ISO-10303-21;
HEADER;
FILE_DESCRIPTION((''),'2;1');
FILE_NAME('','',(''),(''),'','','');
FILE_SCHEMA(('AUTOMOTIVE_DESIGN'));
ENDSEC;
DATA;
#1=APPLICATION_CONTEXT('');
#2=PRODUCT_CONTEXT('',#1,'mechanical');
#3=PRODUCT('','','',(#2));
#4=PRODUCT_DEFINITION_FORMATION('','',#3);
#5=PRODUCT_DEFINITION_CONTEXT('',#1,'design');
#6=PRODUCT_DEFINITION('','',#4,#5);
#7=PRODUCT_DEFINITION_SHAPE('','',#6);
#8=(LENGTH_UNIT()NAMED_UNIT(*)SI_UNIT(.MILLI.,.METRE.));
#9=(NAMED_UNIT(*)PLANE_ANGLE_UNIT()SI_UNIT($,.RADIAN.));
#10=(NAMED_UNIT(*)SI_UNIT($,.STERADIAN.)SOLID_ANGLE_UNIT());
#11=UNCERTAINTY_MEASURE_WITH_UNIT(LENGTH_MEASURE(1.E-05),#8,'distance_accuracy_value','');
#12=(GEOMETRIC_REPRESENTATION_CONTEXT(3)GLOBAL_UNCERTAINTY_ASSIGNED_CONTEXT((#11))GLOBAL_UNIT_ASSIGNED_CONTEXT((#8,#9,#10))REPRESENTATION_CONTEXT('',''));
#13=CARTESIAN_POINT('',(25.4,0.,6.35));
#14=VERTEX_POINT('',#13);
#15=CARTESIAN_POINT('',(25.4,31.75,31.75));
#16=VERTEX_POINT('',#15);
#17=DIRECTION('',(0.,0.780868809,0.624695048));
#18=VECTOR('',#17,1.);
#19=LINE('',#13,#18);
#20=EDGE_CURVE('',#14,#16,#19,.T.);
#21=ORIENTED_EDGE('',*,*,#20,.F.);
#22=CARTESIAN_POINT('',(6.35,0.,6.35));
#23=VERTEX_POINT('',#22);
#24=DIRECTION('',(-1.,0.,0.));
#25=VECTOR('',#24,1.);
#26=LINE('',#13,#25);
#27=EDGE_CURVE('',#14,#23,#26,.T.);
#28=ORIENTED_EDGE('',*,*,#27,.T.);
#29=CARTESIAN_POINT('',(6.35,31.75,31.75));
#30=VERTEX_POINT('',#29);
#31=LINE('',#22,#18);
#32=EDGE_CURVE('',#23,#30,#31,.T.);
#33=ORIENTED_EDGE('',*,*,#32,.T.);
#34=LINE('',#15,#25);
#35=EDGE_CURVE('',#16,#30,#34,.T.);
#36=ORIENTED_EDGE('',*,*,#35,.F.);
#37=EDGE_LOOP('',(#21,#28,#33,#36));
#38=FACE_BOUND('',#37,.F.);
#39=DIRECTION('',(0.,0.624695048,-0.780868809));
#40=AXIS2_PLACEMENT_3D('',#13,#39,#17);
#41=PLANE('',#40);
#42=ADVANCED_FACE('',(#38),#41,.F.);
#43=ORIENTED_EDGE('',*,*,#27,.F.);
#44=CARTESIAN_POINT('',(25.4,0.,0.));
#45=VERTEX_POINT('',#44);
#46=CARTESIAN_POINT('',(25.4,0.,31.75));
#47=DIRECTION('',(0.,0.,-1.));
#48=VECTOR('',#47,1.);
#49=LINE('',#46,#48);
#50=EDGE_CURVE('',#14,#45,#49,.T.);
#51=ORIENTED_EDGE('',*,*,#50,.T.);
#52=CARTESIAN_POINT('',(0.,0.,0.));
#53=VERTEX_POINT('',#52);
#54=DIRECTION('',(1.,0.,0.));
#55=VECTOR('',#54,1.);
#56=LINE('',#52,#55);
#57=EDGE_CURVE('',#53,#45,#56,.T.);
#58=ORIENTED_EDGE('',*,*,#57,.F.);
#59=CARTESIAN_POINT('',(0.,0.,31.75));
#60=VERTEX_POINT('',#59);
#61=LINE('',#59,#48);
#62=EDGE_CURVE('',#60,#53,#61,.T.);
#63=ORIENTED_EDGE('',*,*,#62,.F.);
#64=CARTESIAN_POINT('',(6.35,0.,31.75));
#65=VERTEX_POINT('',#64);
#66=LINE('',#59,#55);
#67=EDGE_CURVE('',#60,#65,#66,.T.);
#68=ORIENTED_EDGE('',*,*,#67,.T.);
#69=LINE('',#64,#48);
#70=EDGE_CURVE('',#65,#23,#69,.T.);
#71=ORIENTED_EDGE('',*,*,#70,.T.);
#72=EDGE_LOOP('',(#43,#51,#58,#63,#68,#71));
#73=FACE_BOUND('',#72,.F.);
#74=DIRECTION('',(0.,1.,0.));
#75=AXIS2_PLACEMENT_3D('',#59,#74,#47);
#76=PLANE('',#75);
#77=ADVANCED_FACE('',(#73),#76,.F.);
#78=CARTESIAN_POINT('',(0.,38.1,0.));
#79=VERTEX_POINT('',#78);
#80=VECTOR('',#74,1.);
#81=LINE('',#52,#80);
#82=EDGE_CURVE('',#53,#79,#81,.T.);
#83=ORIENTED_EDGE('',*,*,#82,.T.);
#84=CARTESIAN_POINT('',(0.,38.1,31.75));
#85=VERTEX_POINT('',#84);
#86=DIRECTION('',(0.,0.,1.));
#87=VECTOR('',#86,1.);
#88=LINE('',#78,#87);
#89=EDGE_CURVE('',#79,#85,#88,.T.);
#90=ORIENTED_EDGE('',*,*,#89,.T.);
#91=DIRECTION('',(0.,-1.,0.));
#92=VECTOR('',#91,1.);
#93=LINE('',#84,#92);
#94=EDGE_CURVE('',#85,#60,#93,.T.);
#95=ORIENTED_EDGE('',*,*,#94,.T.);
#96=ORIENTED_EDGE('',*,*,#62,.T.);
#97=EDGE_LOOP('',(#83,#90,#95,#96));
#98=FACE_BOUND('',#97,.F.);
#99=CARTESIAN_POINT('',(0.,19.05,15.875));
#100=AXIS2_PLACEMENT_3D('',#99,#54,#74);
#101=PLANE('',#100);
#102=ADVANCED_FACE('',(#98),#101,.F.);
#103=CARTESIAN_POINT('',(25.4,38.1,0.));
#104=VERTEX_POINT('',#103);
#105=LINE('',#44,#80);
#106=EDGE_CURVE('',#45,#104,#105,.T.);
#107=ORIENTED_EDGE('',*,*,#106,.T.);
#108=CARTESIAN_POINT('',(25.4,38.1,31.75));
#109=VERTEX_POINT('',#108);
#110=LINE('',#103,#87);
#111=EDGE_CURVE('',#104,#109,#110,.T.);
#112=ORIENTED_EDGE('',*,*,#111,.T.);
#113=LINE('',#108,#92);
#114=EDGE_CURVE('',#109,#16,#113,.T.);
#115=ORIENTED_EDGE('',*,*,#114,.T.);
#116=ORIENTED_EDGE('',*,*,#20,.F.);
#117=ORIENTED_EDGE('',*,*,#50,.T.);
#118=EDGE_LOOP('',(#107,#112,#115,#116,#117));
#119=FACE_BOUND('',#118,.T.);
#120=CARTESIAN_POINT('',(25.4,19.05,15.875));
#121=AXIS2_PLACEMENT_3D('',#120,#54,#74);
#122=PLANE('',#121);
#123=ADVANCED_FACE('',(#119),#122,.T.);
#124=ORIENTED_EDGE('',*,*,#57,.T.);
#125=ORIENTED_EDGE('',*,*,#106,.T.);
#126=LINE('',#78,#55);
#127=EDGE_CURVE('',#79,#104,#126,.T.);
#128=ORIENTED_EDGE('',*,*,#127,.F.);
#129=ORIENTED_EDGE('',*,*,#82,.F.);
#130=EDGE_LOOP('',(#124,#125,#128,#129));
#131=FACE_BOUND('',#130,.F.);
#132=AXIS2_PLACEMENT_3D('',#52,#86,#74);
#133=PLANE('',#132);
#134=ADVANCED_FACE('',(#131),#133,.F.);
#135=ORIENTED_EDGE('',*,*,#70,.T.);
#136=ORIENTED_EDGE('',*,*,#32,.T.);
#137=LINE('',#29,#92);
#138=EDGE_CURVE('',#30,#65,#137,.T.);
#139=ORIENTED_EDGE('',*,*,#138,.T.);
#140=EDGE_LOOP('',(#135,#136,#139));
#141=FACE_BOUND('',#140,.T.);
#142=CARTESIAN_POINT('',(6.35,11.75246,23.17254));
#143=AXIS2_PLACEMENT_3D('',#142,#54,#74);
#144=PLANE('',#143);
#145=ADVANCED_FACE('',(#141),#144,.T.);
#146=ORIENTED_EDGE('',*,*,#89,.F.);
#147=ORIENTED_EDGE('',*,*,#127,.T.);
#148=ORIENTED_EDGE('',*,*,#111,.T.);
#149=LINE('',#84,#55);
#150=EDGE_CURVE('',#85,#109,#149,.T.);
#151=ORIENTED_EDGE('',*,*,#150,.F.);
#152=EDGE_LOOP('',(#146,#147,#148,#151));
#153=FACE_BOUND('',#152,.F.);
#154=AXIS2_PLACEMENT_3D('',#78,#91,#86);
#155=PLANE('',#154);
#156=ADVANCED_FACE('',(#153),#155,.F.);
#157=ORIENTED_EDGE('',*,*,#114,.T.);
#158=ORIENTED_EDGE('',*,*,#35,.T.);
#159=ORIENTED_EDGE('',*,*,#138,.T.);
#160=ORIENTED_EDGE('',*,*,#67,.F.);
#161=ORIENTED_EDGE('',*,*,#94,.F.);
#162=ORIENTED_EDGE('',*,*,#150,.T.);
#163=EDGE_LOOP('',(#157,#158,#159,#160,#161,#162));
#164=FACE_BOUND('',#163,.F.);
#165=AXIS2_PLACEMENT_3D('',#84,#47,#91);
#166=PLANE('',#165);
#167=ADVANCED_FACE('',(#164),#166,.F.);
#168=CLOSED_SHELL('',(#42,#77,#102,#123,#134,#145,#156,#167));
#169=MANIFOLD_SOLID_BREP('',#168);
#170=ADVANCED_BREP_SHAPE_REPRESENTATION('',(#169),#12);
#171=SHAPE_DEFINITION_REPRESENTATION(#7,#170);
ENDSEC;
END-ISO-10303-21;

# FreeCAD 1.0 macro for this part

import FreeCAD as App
import Part
import Sketcher
from FreeCAD import Vector
Q = App.Units.Quantity


def add_polygon(sketch, points):
    """Adds a closed chain of lines whose ends are joined by coincident constraints."""
    first, n = sketch.GeometryCount, len(points)
    for a, b in zip(points, points[1:] + points[:1]):
        sketch.addGeometry(Part.LineSegment(App.Vector(*a, 0), App.Vector(*b, 0)), False)
    for i in range(n):
        sketch.addConstraint(Sketcher.Constraint("Coincident", first + i, 2, first + (i + 1) % n, 1))

doc = App.newDocument("Part")
body = doc.addObject("PartDesign::Body", "Body")

# Sketch on YZ plane
sketch1 = doc.addObject("Sketcher::SketchObject", "Sketch")
body.addObject(sketch1)
sketch1.AttachmentSupport = (doc.YZ_Plane, [""])
sketch1.MapMode = "FlatFace"
add_polygon(sketch1, [(0, 32), (0, 0), (38, 0), (38, 32)])  # lines 0-3
sketch1.addConstraint([
    Sketcher.Constraint("Vertical", 0),
    Sketcher.Constraint("Horizontal", 1),
    Sketcher.Constraint("Vertical", 2),
    Sketcher.Constraint("Horizontal", 3),
    Sketcher.Constraint("Coincident", 0, 2, -1, 1),
    Sketcher.Constraint("DistanceX", 1, 1, 1, 2, Q("1.5 in")),
    Sketcher.Constraint("DistanceY", 0, 2, 0, 1, Q("1.25 in")),
])
pad1 = doc.addObject("PartDesign::Pad", "Pad")
body.addObject(pad1)
pad1.Profile = sketch1
pad1.Length = Q("1 in")

# Sketch on YZ plane
sketch2 = doc.addObject("Sketcher::SketchObject", "Sketch001")
body.addObject(sketch2)
sketch2.AttachmentSupport = (doc.YZ_Plane, [""])
sketch2.MapMode = "FlatFace"
sketch2.AttachmentOffset = App.Placement(Vector(0, 0, 1 * 25.4), App.Rotation())
add_polygon(sketch2, [(0, 6), (32, 32), (0, 32)])  # lines 0-2
sketch2.addConstraint([
    Sketcher.Constraint("Horizontal", 1),
    Sketcher.Constraint("Vertical", 2),
    Sketcher.Constraint("PointOnObject", 1, 2, -2),
    Sketcher.Constraint("DistanceY", 2, 2, 2, 1, Q("1 in")),
    Sketcher.Constraint("DistanceX", 1, 2, 1, 1, Q("1.25 in")),
    Sketcher.Constraint("DistanceY", -1, 1, 0, 2, Q("1.25 in")),
])
pocket1 = doc.addObject("PartDesign::Pocket", "Pocket")
body.addObject(pocket1)
pocket1.Profile = sketch2
pocket1.Length = Q("0.75 in")

doc.recompute()
